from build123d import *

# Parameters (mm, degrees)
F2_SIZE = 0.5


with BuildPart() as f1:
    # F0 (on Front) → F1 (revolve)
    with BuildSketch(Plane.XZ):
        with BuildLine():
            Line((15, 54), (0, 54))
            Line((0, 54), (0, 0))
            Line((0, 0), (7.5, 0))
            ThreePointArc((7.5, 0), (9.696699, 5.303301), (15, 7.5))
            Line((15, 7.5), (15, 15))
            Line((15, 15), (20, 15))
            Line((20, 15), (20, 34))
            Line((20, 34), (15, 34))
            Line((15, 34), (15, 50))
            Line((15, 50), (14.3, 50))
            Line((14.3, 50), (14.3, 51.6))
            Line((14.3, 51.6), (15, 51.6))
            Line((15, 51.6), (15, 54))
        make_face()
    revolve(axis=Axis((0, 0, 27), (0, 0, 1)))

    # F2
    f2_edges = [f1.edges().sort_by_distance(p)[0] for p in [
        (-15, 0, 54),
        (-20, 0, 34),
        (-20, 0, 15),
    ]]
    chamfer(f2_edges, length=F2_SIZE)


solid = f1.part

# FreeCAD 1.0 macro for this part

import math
import FreeCAD as App
import Part
import Sketcher
from FreeCAD import Vector
Q = App.Units.Quantity


def edges_at(feature, points):
    """Names of the edges that pass closest to the given points."""
    edges = feature.Shape.Edges
    near = lambda p: min(range(len(edges)), key=lambda i: edges[i].distToShape(Part.Vertex(*p))[0])
    return sorted({f"Edge{near(p) + 1}" for p in points})

doc = App.newDocument("Part")
body = doc.addObject("PartDesign::Body", "Body")

# Sketch on XZ plane
sketch1 = body.newObject("Sketcher::SketchObject", "Sketch")
sketch1.AttachmentSupport = (doc.getObject("XZ_Plane"), [""])
sketch1.MapMode = "FlatFace"
sketch1.addGeometry([
    Part.LineSegment(Vector(15, 54, 0), Vector(0, 54, 0)),  # 0
    Part.LineSegment(Vector(0, 54, 0), Vector(0, 0, 0)),  # 1
    Part.LineSegment(Vector(0, 0, 0), Vector(7.5, 0, 0)),  # 2
    Part.ArcOfCircle(Part.Circle(Vector(15, 0, 0), Vector(0, 0, 1), 7.5), math.radians(90), math.radians(180)),  # 3
    Part.LineSegment(Vector(15, 7.5, 0), Vector(15, 15, 0)),  # 4
    Part.LineSegment(Vector(15, 15, 0), Vector(20, 15, 0)),  # 5
    Part.LineSegment(Vector(20, 15, 0), Vector(20, 34, 0)),  # 6
    Part.LineSegment(Vector(20, 34, 0), Vector(15, 34, 0)),  # 7
    Part.LineSegment(Vector(15, 34, 0), Vector(15, 50, 0)),  # 8
    Part.LineSegment(Vector(15, 50, 0), Vector(14.3, 50, 0)),  # 9
    Part.LineSegment(Vector(14.3, 50, 0), Vector(14.3, 51.6, 0)),  # 10
    Part.LineSegment(Vector(14.3, 51.6, 0), Vector(15, 51.6, 0)),  # 11
    Part.LineSegment(Vector(15, 51.6, 0), Vector(15, 54, 0)),  # 12
], False)
sketch1.addConstraint([
    Sketcher.Constraint("Coincident", 0, 2, 1, 1),
    Sketcher.Constraint("Coincident", 1, 2, 2, 1),
    Sketcher.Constraint("Coincident", 2, 2, 3, 2),
    Sketcher.Constraint("Coincident", 3, 1, 4, 1),
    Sketcher.Constraint("Coincident", 4, 2, 5, 1),
    Sketcher.Constraint("Coincident", 5, 2, 6, 1),
    Sketcher.Constraint("Coincident", 6, 2, 7, 1),
    Sketcher.Constraint("Coincident", 7, 2, 8, 1),
    Sketcher.Constraint("Coincident", 8, 2, 9, 1),
    Sketcher.Constraint("Coincident", 9, 2, 10, 1),
    Sketcher.Constraint("Coincident", 10, 2, 11, 1),
    Sketcher.Constraint("Coincident", 11, 2, 12, 1),
    Sketcher.Constraint("Coincident", 12, 2, 0, 1),
    Sketcher.Constraint("Horizontal", 0),
    Sketcher.Constraint("Vertical", 1),
    Sketcher.Constraint("Horizontal", 2),
    Sketcher.Constraint("Vertical", 4),
    Sketcher.Constraint("Horizontal", 5),
    Sketcher.Constraint("Vertical", 6),
    Sketcher.Constraint("Horizontal", 7),
    Sketcher.Constraint("Vertical", 8),
    Sketcher.Constraint("Horizontal", 9),
    Sketcher.Constraint("Vertical", 10),
    Sketcher.Constraint("Horizontal", 11),
    Sketcher.Constraint("Vertical", 12),
    Sketcher.Constraint("Coincident", 1, 2, -1, 1),
    Sketcher.Constraint("PointOnObject", 3, 3, -1),
    Sketcher.Constraint("Vertical", 4, 2, 7, 2),
    Sketcher.Constraint("Vertical", 8, 2, 11, 2),
    Sketcher.Constraint("Equal", 2, 4),
    Sketcher.Constraint("Radius", 3, Q("7.5 mm")),
    Sketcher.Constraint("DistanceX", 0, 2, 0, 1, Q("15 mm")),
    Sketcher.Constraint("DistanceX", 5, 1, 5, 2, Q("5 mm")),
    Sketcher.Constraint("DistanceY", 1, 2, 1, 1, Q("54 mm")),
    Sketcher.Constraint("DistanceY", 6, 1, 6, 2, Q("19 mm")),
    Sketcher.Constraint("DistanceY", 8, 1, 8, 2, Q("16 mm")),
    Sketcher.Constraint("DistanceX", 2, 1, 2, 2, Q("7.5 mm")),
    Sketcher.Constraint("DistanceX", 9, 2, 9, 1, Q("0.7 mm")),
    Sketcher.Constraint("DistanceY", 10, 1, 10, 2, Q("1.6 mm")),
])
revolution = body.newObject("PartDesign::Revolution", "Revolution")
revolution.Profile = sketch1
revolution.ReferenceAxis = (sketch1, ["V_Axis"])
revolution.Angle = 360
doc.recompute()

chamfer = body.newObject("PartDesign::Chamfer", "Chamfer")
chamfer.Base = (revolution, edges_at(revolution, [(-15, 0, 54), (-20, 0, 34), (-20, 0, 15)]))
chamfer.Size = 0.5

doc.recompute()
